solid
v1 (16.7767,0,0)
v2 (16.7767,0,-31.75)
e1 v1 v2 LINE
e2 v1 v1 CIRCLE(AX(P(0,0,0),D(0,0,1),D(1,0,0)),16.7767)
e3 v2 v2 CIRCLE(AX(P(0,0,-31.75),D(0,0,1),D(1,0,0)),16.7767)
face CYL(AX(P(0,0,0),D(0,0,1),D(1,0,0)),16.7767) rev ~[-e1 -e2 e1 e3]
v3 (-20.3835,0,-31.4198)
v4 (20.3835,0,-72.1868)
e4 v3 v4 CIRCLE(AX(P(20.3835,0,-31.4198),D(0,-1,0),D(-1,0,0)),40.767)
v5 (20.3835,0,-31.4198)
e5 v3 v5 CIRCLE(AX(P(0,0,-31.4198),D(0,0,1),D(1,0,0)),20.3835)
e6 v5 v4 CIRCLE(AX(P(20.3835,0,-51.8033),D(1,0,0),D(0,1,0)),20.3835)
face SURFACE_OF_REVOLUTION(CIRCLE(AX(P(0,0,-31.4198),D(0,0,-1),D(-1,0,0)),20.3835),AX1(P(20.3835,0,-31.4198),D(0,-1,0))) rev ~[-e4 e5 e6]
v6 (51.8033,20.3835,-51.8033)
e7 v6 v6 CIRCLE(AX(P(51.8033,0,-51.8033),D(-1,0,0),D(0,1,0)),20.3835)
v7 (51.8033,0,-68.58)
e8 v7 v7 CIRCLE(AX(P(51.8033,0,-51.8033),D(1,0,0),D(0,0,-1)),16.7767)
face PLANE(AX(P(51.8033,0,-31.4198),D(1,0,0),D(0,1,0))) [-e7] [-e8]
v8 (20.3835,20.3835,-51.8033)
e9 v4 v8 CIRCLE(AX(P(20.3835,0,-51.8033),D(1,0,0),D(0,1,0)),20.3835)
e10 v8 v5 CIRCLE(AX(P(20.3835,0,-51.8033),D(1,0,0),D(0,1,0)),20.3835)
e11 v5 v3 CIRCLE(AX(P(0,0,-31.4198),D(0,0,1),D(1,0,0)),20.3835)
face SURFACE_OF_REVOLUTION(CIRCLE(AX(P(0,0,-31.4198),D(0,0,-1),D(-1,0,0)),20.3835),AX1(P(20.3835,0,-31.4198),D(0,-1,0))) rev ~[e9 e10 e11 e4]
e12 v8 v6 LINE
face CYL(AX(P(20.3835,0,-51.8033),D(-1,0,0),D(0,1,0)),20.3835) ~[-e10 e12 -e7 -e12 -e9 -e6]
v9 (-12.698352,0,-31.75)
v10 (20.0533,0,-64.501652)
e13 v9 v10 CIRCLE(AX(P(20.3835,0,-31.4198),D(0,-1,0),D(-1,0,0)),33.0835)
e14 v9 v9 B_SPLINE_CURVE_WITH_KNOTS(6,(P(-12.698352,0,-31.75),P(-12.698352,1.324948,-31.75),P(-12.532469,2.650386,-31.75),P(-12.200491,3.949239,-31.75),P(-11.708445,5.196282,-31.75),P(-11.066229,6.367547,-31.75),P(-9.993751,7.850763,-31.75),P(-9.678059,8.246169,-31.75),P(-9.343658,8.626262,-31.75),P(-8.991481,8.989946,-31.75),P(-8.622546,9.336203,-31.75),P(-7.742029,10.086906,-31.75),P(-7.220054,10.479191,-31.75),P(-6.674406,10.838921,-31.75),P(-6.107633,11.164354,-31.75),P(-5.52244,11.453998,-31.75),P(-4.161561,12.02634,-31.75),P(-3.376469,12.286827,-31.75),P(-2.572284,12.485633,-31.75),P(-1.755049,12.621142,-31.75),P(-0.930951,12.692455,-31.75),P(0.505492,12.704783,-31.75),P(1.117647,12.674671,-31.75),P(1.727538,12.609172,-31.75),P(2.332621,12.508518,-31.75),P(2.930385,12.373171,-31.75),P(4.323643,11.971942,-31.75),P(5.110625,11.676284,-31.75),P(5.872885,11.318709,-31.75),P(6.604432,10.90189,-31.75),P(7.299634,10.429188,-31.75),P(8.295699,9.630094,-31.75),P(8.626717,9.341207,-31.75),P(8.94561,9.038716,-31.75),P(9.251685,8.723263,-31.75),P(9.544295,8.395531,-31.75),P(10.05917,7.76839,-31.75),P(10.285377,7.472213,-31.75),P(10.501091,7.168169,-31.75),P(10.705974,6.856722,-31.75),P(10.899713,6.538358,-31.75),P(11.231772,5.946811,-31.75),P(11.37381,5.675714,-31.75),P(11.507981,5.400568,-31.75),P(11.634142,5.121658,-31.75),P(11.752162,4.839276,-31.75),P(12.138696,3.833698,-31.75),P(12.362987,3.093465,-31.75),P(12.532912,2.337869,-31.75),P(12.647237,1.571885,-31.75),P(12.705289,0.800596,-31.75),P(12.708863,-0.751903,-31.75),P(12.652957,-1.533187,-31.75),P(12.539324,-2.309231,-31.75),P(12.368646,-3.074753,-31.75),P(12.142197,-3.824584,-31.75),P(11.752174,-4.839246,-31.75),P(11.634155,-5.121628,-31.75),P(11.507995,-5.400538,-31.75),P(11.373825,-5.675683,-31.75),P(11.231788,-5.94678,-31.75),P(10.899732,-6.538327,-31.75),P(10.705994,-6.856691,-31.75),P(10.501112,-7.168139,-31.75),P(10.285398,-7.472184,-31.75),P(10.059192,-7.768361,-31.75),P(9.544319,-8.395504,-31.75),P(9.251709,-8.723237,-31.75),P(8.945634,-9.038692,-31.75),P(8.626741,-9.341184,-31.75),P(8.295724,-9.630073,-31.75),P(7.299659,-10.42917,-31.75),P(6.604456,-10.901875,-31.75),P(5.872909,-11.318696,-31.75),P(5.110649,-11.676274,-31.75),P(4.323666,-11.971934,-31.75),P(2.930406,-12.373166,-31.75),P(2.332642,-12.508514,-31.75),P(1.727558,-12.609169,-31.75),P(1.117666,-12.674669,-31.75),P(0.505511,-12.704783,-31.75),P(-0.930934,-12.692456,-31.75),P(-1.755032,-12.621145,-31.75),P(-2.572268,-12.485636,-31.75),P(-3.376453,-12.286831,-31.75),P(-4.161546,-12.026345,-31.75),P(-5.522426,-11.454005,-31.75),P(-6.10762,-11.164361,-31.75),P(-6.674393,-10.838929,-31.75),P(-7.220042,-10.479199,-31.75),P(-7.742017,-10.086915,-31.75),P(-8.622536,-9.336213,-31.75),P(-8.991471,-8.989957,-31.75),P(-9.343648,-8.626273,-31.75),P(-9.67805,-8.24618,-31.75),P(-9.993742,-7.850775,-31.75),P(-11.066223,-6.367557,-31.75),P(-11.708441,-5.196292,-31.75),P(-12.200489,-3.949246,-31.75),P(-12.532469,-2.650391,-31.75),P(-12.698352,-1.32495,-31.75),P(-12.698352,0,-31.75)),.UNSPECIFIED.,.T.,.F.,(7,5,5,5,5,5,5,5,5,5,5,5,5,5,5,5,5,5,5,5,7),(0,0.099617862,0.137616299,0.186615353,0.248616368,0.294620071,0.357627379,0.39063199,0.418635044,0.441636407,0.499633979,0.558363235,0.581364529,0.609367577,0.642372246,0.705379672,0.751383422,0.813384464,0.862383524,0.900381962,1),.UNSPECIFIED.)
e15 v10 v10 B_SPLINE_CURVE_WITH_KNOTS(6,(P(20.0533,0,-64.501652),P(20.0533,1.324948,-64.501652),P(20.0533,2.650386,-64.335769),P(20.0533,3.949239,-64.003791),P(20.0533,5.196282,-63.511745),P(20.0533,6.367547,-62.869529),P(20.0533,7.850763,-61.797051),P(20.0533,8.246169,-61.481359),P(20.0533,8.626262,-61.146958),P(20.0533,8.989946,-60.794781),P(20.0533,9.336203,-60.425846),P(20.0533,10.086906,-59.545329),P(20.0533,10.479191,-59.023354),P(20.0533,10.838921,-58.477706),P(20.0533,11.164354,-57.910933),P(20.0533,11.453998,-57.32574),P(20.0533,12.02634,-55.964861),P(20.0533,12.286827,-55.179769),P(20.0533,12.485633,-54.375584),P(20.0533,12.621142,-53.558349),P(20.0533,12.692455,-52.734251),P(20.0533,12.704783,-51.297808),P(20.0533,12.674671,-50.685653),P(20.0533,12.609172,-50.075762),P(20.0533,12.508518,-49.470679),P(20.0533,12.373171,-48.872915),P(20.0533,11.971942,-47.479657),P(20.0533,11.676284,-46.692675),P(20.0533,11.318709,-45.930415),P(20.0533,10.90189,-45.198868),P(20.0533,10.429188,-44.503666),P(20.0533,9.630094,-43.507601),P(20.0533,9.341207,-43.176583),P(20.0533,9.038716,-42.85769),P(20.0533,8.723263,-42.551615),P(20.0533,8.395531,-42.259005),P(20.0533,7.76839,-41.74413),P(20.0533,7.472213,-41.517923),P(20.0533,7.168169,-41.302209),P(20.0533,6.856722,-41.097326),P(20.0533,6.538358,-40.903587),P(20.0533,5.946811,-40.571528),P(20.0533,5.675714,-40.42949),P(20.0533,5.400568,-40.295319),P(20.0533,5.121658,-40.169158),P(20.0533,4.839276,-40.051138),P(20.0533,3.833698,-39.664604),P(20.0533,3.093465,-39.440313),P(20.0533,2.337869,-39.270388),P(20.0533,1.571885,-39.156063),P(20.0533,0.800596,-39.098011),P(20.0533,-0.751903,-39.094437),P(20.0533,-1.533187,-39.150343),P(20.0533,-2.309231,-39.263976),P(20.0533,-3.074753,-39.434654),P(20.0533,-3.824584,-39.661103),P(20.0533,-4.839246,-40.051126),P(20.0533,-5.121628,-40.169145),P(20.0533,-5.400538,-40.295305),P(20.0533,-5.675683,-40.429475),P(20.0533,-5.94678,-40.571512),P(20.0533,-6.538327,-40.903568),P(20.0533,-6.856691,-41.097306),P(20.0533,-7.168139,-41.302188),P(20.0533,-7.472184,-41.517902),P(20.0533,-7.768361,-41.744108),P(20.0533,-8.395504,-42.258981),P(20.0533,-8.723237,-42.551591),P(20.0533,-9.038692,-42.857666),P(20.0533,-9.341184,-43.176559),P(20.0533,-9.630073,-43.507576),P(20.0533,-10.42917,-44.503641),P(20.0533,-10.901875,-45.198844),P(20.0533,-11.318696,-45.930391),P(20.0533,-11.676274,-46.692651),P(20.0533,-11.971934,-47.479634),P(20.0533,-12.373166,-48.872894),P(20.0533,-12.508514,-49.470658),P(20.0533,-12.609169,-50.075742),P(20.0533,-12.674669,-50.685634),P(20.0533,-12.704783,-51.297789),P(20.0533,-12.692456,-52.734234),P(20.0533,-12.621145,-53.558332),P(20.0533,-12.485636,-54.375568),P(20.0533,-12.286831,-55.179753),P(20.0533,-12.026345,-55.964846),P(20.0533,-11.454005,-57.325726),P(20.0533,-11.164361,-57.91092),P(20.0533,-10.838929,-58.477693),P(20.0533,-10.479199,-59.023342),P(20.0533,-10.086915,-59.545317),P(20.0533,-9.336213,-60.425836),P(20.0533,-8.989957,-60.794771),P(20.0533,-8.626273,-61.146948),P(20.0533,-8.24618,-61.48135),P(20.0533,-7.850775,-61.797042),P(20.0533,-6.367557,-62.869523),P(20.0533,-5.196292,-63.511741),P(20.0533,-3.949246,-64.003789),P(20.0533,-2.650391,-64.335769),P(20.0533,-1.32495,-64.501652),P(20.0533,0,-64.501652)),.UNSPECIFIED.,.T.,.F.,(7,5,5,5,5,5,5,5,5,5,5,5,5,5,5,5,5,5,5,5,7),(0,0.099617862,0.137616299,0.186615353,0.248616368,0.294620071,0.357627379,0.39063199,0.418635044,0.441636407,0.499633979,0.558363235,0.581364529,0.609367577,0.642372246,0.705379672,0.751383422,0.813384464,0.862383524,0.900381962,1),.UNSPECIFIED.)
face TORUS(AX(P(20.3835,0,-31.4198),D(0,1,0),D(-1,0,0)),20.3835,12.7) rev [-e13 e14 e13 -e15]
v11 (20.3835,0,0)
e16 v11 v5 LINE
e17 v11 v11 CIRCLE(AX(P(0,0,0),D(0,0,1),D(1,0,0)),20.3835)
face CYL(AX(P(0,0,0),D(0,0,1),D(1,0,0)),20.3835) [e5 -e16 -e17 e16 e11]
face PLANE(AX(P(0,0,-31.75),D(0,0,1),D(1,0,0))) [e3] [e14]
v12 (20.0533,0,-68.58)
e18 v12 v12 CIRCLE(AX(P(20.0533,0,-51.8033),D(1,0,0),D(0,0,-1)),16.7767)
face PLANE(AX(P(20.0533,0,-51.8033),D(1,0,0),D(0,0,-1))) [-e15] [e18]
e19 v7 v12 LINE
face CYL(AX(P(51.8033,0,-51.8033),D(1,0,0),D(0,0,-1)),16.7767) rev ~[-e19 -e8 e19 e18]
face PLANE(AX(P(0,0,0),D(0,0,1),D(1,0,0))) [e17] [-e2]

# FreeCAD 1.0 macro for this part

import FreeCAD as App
import Part
import Sketcher

V = App.Vector
Q = App.Units.Quantity

doc = App.newDocument("Part")
body = doc.addObject("PartDesign::Body", "Body")
body.AllowCompound = True

sketch1 = body.newObject("Sketcher::SketchObject", "Sketch")
sketch1.AttachmentSupport = (doc.getObject("XY_Plane"), [""])
sketch1.MapMode = "FlatFace"
sketch1.addGeometry(Part.Circle(V(0, 0, 0), V(0, 0, 1), 20), False)
sketch1.addConstraint([
    Sketcher.Constraint("Coincident", 0, 3, -1, 1),
    Sketcher.Constraint("Diameter", 0, Q("1.605 in")),
])
pad1 = body.newObject("PartDesign::Pad", "Pad")
pad1.Profile = sketch1
pad1.Length = Q("1.237 in")
pad1.Reversed = True

sketch2 = body.newObject("Sketcher::SketchObject", "Sketch001")
sketch2.AttachmentSupport = (doc.getObject("YZ_Plane"), [""])
sketch2.MapMode = "FlatFace"
sketch2.AttachmentOffset = App.Placement(V(0, 0, 0.8025 * 25.4), App.Rotation())
sketch2.addGeometry(Part.Circle(V(0, -52, 0), V(0, 0, 1), 20), False)
sketch2.addConstraint([
    Sketcher.Constraint("PointOnObject", 0, 3, -2),
    Sketcher.Constraint("Diameter", 0, Q("1.605 in")),
    Sketcher.Constraint("DistanceY", 0, 3, -1, 1, Q("2.0395 in")),
])
pad2 = body.newObject("PartDesign::Pad", "Pad001")
pad2.Profile = sketch2
pad2.Length = Q("1.237 in")

sketch3 = body.newObject("Sketcher::SketchObject", "Sketch002")
sketch3.AttachmentSupport = (doc.getObject("XY_Plane"), [""])
sketch3.MapMode = "FlatFace"
sketch3.AttachmentOffset = App.Placement(V(0, 0, -1.237 * 25.4), App.Rotation())
sketch3.addGeometry(Part.Circle(V(0, 0, 0), V(0, 0, 1), 20), False)
sketch3.addGeometry(Part.LineSegment(V(20, 0, 0), V(20, -10, 0)), True)
sketch3.addConstraint([
    Sketcher.Constraint("Vertical", 1),
    Sketcher.Constraint("Coincident", 0, 3, -1, 1),
    Sketcher.Constraint("PointOnObject", 1, 1, -1),
    Sketcher.Constraint("Diameter", 0, Q("1.605 in")),
    Sketcher.Constraint("DistanceY", 1, 2, 1, 1, Q("0.3937 in")),
    Sketcher.Constraint("DistanceX", -1, 1, 1, 1, Q("0.8025 in")),
])
revolution = body.newObject("PartDesign::Revolution", "Revolution")
revolution.Profile = sketch3
revolution.ReferenceAxis = (sketch3, ["Axis0"])
revolution.Angle = 90

sketch4 = body.newObject("Sketcher::SketchObject", "Sketch003")
sketch4.AttachmentSupport = (doc.getObject("XY_Plane"), [""])
sketch4.MapMode = "FlatFace"
sketch4.addGeometry(Part.Circle(V(0, 0, 0), V(0, 0, 1), 17), False)
sketch4.addConstraint([
    Sketcher.Constraint("Coincident", 0, 3, -1, 1),
    Sketcher.Constraint("Diameter", 0, Q("1.321 in")),
])
pocket1 = body.newObject("PartDesign::Pocket", "Pocket")
pocket1.Profile = sketch4
pocket1.Length = Q("1.25 in")

sketch5 = body.newObject("Sketcher::SketchObject", "Sketch004")
sketch5.AttachmentSupport = (doc.getObject("XY_Plane"), [""])
sketch5.MapMode = "FlatFace"
sketch5.AttachmentOffset = App.Placement(V(0, 0, -1.237 * 25.4), App.Rotation())
sketch5.addGeometry(Part.Circle(V(0, 0, 0), V(0, 0, 1), 13), False)
sketch5.addGeometry(Part.LineSegment(V(20, 0, 0), V(20, -10, 0)), True)
sketch5.addConstraint([
    Sketcher.Constraint("Vertical", 1),
    Sketcher.Constraint("Coincident", 0, 3, -1, 1),
    Sketcher.Constraint("PointOnObject", 1, 1, -1),
    Sketcher.Constraint("Diameter", 0, Q("1 in")),
    Sketcher.Constraint("DistanceY", 1, 2, 1, 1, Q("0.3937 in")),
    Sketcher.Constraint("DistanceX", -1, 1, 1, 1, Q("0.8025 in")),
])
groove = body.newObject("PartDesign::Groove", "Groove")
groove.Profile = sketch5
groove.ReferenceAxis = (sketch5, ["Axis0"])
groove.Angle = 90

sketch6 = body.newObject("Sketcher::SketchObject", "Sketch005")
sketch6.AttachmentSupport = (doc.getObject("YZ_Plane"), [""])
sketch6.MapMode = "FlatFace"
sketch6.AttachmentOffset = App.Placement(V(0, 0, 2.0395 * 25.4), App.Rotation())
sketch6.addGeometry(Part.Circle(V(0, -52, 0), V(0, 0, 1), 17), False)
sketch6.addConstraint([
    Sketcher.Constraint("PointOnObject", 0, 3, -2),
    Sketcher.Constraint("Diameter", 0, Q("1.321 in")),
    Sketcher.Constraint("DistanceY", 0, 3, -1, 1, Q("2.0395 in")),
])
pocket2 = body.newObject("PartDesign::Pocket", "Pocket001")
pocket2.Profile = sketch6
pocket2.Length = Q("1.25 in")

doc.recompute()
